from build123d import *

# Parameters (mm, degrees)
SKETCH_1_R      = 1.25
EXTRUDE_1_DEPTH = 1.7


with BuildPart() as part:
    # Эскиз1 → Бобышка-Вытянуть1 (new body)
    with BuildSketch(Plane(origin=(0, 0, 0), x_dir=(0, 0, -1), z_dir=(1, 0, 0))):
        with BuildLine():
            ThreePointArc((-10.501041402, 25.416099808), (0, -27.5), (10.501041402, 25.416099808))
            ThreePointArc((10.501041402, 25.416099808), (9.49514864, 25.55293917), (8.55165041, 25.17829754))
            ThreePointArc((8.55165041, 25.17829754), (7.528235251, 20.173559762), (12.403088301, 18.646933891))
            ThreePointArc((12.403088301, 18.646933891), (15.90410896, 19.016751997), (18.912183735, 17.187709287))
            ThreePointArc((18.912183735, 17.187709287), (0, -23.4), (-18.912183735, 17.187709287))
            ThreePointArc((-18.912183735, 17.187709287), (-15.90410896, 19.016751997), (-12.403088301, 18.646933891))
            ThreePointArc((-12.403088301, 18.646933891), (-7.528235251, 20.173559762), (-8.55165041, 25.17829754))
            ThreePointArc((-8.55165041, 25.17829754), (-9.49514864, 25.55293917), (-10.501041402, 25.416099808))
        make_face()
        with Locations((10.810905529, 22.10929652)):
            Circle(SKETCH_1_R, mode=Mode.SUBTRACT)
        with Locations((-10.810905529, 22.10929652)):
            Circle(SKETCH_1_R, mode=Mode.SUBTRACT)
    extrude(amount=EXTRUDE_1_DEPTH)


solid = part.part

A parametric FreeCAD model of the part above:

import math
import FreeCAD as App
import Part
import Sketcher

V = App.Vector
Q = App.Units.Quantity

doc = App.newDocument("Part")
body = doc.addObject("PartDesign::Body", "Body")

# Sketch on YZ plane
sketch1 = doc.addObject("Sketcher::SketchObject", "Sketch")
body.addObject(sketch1)
sketch1.AttachmentSupport = (doc.YZ_Plane, [""])
sketch1.MapMode = "FlatFace"
sketch1.addGeometry(Part.ArcOfCircle(Part.Circle(V(0, 0, 0), V(0, 0, 1), 27.5), math.radians(22), math.radians(338)), False)
sketch1.addGeometry(Part.ArcOfCircle(Part.Circle(V(23.6, -9.7, 0), V(0, 0, 1), 2), math.radians(-22), math.radians(36)), False)
sketch1.addGeometry(Part.ArcOfCircle(Part.Circle(V(22.1, -10.8, 0), V(0, 0, 1), 3.8), math.radians(36), math.radians(205)), False)
sketch1.addGeometry(Part.ArcOfCircle(Part.Circle(V(13.6, -14.7, 0), V(0, 0, 1), 5.5), math.radians(-50), math.radians(25)), False)
sketch1.addGeometry(Part.ArcOfCircle(Part.Circle(V(1.3, 0, 0), V(0, 0, 1), 24.7), math.radians(50), math.radians(310)), False)
sketch1.addGeometry(Part.ArcOfCircle(Part.Circle(V(13.6, 14.7, 0), V(0, 0, 1), 5.5), math.radians(-25), math.radians(50)), False)
sketch1.addGeometry(Part.ArcOfCircle(Part.Circle(V(22.1, 10.8, 0), V(0, 0, 1), 3.8), math.radians(155), math.radians(324)), False)
sketch1.addGeometry(Part.ArcOfCircle(Part.Circle(V(23.6, 9.7, 0), V(0, 0, 1), 2), math.radians(-36), math.radians(22)), False)
sketch1.addGeometry(Part.Circle(V(22.1, 10.8, 0), V(0, 0, 1), 1.2), False)
sketch1.addGeometry(Part.Circle(V(22.1, -10.8, 0), V(0, 0, 1), 1.2), False)
sketch1.addConstraint(Sketcher.Constraint("Tangent", 0, 2, 1, 1))
sketch1.addConstraint(Sketcher.Constraint("Tangent", 1, 2, 2, 1))
sketch1.addConstraint(Sketcher.Constraint("Tangent", 2, 2, 3, 2))
sketch1.addConstraint(Sketcher.Constraint("Tangent", 3, 1, 4, 2))
sketch1.addConstraint(Sketcher.Constraint("Tangent", 4, 1, 5, 2))
sketch1.addConstraint(Sketcher.Constraint("Tangent", 5, 1, 6, 1))
sketch1.addConstraint(Sketcher.Constraint("Tangent", 6, 2, 7, 1))
sketch1.addConstraint(Sketcher.Constraint("Tangent", 7, 2, 0, 1))
sketch1.addConstraint(Sketcher.Constraint("Coincident", 0, 3, -1, 1))
sketch1.addConstraint(Sketcher.Constraint("Coincident", 8, 3, 6, 3))
sketch1.addConstraint(Sketcher.Constraint("Coincident", 9, 3, 2, 3))
sketch1.addConstraint(Sketcher.Constraint("Equal", 3, 5))
sketch1.addConstraint(Sketcher.Constraint("Equal", 2, 6))
sketch1.addConstraint(Sketcher.Constraint("Equal", 1, 7))
sketch1.addConstraint(Sketcher.Constraint("Equal", 8, 9))
sketch1.addConstraint(Sketcher.Constraint("Symmetric", 3, 3, 5, 3, -1))
sketch1.addConstraint(Sketcher.Constraint("Vertical", 2, 3, 6, 3))
sketch1.addConstraint(Sketcher.Constraint("Radius", 1, Q("2 mm")))
sketch1.addConstraint(Sketcher.Constraint("Diameter", 8, Q("2.5 mm")))
sketch1.addConstraint(Sketcher.Constraint("Radius", 0, Q("27.5 mm")))
sketch1.addConstraint(Sketcher.Constraint("Radius", 3, Q("5.5 mm")))
sketch1.addConstraint(Sketcher.Constraint("Radius", 4, Q("24.7 mm")))
sketch1.addConstraint(Sketcher.Constraint("DistanceX", -1, 1, 4, 3, Q("1.3 mm")))
sketch1.addConstraint(Sketcher.Constraint("Radius", 2, Q("3.810906 mm")))
sketch1.addConstraint(Sketcher.Constraint("DistanceX", 2, 3, 1, 2, Q("3.069001 mm")))
sketch1.addConstraint(Sketcher.Constraint("DistanceX", -1, 1, 0, 2, Q("25.4161 mm")))
pad1 = doc.addObject("PartDesign::Pad", "Pad")
body.addObject(pad1)
pad1.Profile = sketch1
pad1.Length = 1.7

doc.recompute()
